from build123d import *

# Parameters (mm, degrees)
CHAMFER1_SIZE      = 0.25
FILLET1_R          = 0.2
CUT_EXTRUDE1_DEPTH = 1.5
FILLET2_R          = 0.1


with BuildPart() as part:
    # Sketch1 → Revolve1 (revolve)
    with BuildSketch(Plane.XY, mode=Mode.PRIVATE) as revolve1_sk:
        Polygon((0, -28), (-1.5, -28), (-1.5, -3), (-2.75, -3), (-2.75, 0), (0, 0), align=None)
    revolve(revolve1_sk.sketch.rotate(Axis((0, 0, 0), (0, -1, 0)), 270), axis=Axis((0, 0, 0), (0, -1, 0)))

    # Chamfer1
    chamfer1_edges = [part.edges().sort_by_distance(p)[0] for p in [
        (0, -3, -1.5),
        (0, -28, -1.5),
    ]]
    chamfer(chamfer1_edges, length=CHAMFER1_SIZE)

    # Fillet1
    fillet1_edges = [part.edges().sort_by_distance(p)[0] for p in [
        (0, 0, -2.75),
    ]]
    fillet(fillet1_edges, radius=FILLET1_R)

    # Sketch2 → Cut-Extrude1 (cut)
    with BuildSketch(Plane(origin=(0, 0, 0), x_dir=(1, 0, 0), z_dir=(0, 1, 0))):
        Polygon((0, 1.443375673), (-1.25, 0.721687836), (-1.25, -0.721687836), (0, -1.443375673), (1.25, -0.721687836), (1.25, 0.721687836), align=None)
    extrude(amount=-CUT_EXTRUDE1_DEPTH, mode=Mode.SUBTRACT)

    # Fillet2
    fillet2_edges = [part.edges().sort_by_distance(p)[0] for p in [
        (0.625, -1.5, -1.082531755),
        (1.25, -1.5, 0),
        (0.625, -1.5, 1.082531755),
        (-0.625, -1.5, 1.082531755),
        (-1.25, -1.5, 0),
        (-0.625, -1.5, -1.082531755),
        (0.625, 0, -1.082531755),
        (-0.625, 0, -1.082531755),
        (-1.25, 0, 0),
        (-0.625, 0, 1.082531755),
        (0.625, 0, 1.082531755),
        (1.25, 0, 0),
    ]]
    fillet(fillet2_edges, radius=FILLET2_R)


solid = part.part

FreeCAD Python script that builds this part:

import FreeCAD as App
import Part
import Sketcher
Q = App.Units.Quantity


def edges_at(feature, points):
    """Names of the edges that pass closest to the given points."""
    edges = feature.Shape.Edges
    near = lambda p: min(range(len(edges)), key=lambda i: edges[i].distToShape(Part.Vertex(*p))[0])
    return sorted({f"Edge{near(p) + 1}" for p in points})

doc = App.newDocument("Part")
body = doc.addObject("PartDesign::Body", "Body")

sketch1 = body.newObject("Sketcher::SketchObject", "Sketch")
sketch1.AttachmentSupport = (doc.getObject("XY_Plane"), [""])
sketch1.MapMode = "FlatFace"
sketch1.addGeometry([
    Part.LineSegment(App.Vector(-1.5, -28, 0), App.Vector(0, -28, 0)),
    Part.LineSegment(App.Vector(0, -28, 0), App.Vector(0, 0, 0)),
    Part.LineSegment(App.Vector(0, 0, 0), App.Vector(-2.8, 0, 0)),
    Part.LineSegment(App.Vector(-2.8, 0, 0), App.Vector(-2.8, -3, 0)),
    Part.LineSegment(App.Vector(-2.8, -3, 0), App.Vector(-1.5, -3, 0)),
    Part.LineSegment(App.Vector(-1.5, -3, 0), App.Vector(-1.5, -28, 0)),
], False)
sketch1.addConstraint([
    Sketcher.Constraint("Coincident", 0, 2, 1, 1),
    Sketcher.Constraint("Coincident", 1, 2, 2, 1),
    Sketcher.Constraint("Coincident", 2, 2, 3, 1),
    Sketcher.Constraint("Coincident", 3, 2, 4, 1),
    Sketcher.Constraint("Coincident", 4, 2, 5, 1),
    Sketcher.Constraint("Coincident", 5, 2, 0, 1),
    Sketcher.Constraint("Horizontal", 0),
    Sketcher.Constraint("Vertical", 1),
    Sketcher.Constraint("Horizontal", 2),
    Sketcher.Constraint("Vertical", 3),
    Sketcher.Constraint("Horizontal", 4),
    Sketcher.Constraint("Vertical", 5),
    Sketcher.Constraint("Coincident", 1, 2, -1, 1),
    Sketcher.Constraint("DistanceY", 1, 1, 1, 2, 28.0),
    Sketcher.Constraint("DistanceY", 3, 2, 3, 1, 3.0),
    Sketcher.Constraint("DistanceX", 0, 1, 0, 2, 1.5),
    Sketcher.Constraint("DistanceX", 2, 2, 2, 1, 2.75),
])
revolution = body.newObject("PartDesign::Revolution", "Revolution")
revolution.Profile = sketch1
revolution.ReferenceAxis = (sketch1, ["V_Axis"])
revolution.Angle = 360
doc.recompute()

chamfer = body.newObject("PartDesign::Chamfer", "Chamfer")
chamfer.Base = (revolution, edges_at(revolution, [(0, -3, -1.5), (0, -28, -1.5)]))
chamfer.Size = 0.25
doc.recompute()

fillet = body.newObject("PartDesign::Fillet", "Fillet")
fillet.Base = (chamfer, edges_at(chamfer, [(0, 0, -2.75)]))
fillet.Radius = 0.2

sketch2 = body.newObject("Sketcher::SketchObject", "Sketch001")
sketch2.AttachmentSupport = (doc.getObject("XZ_Plane"), [""])
sketch2.MapMode = "FlatFace"
sketch2.addGeometry([
    Part.LineSegment(App.Vector(0, -1.4, 0), App.Vector(-1.2, -0.7, 0)),
    Part.LineSegment(App.Vector(-1.2, -0.7, 0), App.Vector(-1.2, 0.7, 0)),
    Part.LineSegment(App.Vector(-1.2, 0.7, 0), App.Vector(0, 1.4, 0)),
    Part.LineSegment(App.Vector(0, 1.4, 0), App.Vector(1.2, 0.7, 0)),
    Part.LineSegment(App.Vector(1.2, 0.7, 0), App.Vector(1.2, -0.7, 0)),
    Part.LineSegment(App.Vector(1.2, -0.7, 0), App.Vector(0, -1.4, 0)),
], False)
sketch2.addConstraint([
    Sketcher.Constraint("Coincident", 0, 2, 1, 1),
    Sketcher.Constraint("Coincident", 1, 2, 2, 1),
    Sketcher.Constraint("Coincident", 2, 2, 3, 1),
    Sketcher.Constraint("Coincident", 3, 2, 4, 1),
    Sketcher.Constraint("Coincident", 4, 2, 5, 1),
    Sketcher.Constraint("Coincident", 5, 2, 0, 1),
    Sketcher.Constraint("Vertical", 1),
    Sketcher.Constraint("Vertical", 4),
    Sketcher.Constraint("Symmetric", 0, 2, 3, 2, -1, 1),
    Sketcher.Constraint("Symmetric", 2, 2, 5, 2, -1, 1),
    Sketcher.Constraint("PointOnObject", 2, 2, -2),
    Sketcher.Constraint("Parallel", 2, 5),
    Sketcher.Constraint("Horizontal", 1, 2, 3, 2),
    Sketcher.Constraint("Angle", 0, Q("150 deg")),
    Sketcher.Constraint("DistanceX", 1, 2, 3, 2, 2.5),
    Sketcher.Constraint("DistanceY", 1, 1, 1, 2, 1.443376),
])
pocket1 = body.newObject("PartDesign::Pocket", "Pocket")
pocket1.Profile = sketch2
pocket1.Length = 1.5
pocket1.Reversed = True
doc.recompute()

fillet2 = body.newObject("PartDesign::Fillet", "Fillet001")
fillet2.Base = (pocket1, edges_at(pocket1, [
    (0.625, -1.5, -1.083),
    (1.25, -1.5, 0),
    (0.625, -1.5, 1.083),
    (-0.625, -1.5, 1.083),
    (-1.25, -1.5, 0),
    (-0.625, -1.5, -1.083),
    (0.625, 0, -1.083),
    (-0.625, 0, -1.083),
    (-1.25, 0, 0),
    (-0.625, 0, 1.083),
    (0.625, 0, 1.083),
    (1.25, 0, 0),
]))
fillet2.Radius = 0.1

doc.recompute()
